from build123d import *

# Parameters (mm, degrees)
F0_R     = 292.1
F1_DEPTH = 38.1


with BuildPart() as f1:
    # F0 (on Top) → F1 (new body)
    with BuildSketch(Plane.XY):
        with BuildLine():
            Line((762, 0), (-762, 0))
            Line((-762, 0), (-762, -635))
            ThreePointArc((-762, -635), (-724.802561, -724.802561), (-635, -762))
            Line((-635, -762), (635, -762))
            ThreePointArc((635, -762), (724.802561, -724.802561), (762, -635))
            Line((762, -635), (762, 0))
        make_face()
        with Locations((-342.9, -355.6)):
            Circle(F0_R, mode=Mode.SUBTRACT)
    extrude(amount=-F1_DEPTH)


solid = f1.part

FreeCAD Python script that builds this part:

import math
import FreeCAD as App
import Part
import Sketcher

V = App.Vector
Q = App.Units.Quantity

doc = App.newDocument("Part")
body = doc.addObject("PartDesign::Body", "Body")

# Sketch on XY plane
sketch1 = body.newObject("Sketcher::SketchObject", "Sketch")
sketch1.AttachmentSupport = (doc.getObject("XY_Plane"), [""])
sketch1.MapMode = "FlatFace"
sketch1.addGeometry(Part.LineSegment(V(762, 0, 0), V(-762, 0, 0)), False)
sketch1.addGeometry(Part.LineSegment(V(-762, 0, 0), V(-762, -635, 0)), False)
sketch1.addGeometry(Part.ArcOfCircle(Part.Circle(V(-635, -635, 0), V(0, 0, 1), 127), math.radians(-180), math.radians(-90)), False)
sketch1.addGeometry(Part.LineSegment(V(-635, -762, 0), V(635, -762, 0)), False)
sketch1.addGeometry(Part.ArcOfCircle(Part.Circle(V(635, -635, 0), V(0, 0, 1), 127), math.radians(-90), math.radians(0)), False)
sketch1.addGeometry(Part.LineSegment(V(762, -635, 0), V(762, 0, 0)), False)
sketch1.addGeometry(Part.Circle(V(-343, -356, 0), V(0, 0, 1), 292), False)
sketch1.addConstraint(Sketcher.Constraint("Coincident", 0, 2, 1, 1))
sketch1.addConstraint(Sketcher.Constraint("Tangent", 1, 2, 2, 1))
sketch1.addConstraint(Sketcher.Constraint("Tangent", 2, 2, 3, 1))
sketch1.addConstraint(Sketcher.Constraint("Tangent", 3, 2, 4, 1))
sketch1.addConstraint(Sketcher.Constraint("Tangent", 4, 2, 5, 1))
sketch1.addConstraint(Sketcher.Constraint("Coincident", 5, 2, 0, 1))
sketch1.addConstraint(Sketcher.Constraint("Horizontal", 0))
sketch1.addConstraint(Sketcher.Constraint("Vertical", 1))
sketch1.addConstraint(Sketcher.Constraint("Horizontal", 3))
sketch1.addConstraint(Sketcher.Constraint("Vertical", 5))
sketch1.addConstraint(Sketcher.Constraint("Equal", 2, 4))
sketch1.addConstraint(Sketcher.Constraint("Symmetric", 0, 2, 5, 2, -1, 1))
sketch1.addConstraint(Sketcher.Constraint("Diameter", 6, Q("23 in")))
sketch1.addConstraint(Sketcher.Constraint("Radius", 2, Q("5 in")))
sketch1.addConstraint(Sketcher.Constraint("DistanceX", 0, 2, 0, 1, Q("60 in")))
sketch1.addConstraint(Sketcher.Constraint("DistanceY", 1, 2, 1, 1, Q("25 in")))
sketch1.addConstraint(Sketcher.Constraint("DistanceY", 6, 3, -1, 1, Q("14 in")))
sketch1.addConstraint(Sketcher.Constraint("DistanceX", 6, 3, -1, 1, Q("13.5 in")))
pad1 = body.newObject("PartDesign::Pad", "Pad")
pad1.Profile = sketch1
pad1.Length = Q("1.5 in")
pad1.Reversed = True

doc.recompute()
